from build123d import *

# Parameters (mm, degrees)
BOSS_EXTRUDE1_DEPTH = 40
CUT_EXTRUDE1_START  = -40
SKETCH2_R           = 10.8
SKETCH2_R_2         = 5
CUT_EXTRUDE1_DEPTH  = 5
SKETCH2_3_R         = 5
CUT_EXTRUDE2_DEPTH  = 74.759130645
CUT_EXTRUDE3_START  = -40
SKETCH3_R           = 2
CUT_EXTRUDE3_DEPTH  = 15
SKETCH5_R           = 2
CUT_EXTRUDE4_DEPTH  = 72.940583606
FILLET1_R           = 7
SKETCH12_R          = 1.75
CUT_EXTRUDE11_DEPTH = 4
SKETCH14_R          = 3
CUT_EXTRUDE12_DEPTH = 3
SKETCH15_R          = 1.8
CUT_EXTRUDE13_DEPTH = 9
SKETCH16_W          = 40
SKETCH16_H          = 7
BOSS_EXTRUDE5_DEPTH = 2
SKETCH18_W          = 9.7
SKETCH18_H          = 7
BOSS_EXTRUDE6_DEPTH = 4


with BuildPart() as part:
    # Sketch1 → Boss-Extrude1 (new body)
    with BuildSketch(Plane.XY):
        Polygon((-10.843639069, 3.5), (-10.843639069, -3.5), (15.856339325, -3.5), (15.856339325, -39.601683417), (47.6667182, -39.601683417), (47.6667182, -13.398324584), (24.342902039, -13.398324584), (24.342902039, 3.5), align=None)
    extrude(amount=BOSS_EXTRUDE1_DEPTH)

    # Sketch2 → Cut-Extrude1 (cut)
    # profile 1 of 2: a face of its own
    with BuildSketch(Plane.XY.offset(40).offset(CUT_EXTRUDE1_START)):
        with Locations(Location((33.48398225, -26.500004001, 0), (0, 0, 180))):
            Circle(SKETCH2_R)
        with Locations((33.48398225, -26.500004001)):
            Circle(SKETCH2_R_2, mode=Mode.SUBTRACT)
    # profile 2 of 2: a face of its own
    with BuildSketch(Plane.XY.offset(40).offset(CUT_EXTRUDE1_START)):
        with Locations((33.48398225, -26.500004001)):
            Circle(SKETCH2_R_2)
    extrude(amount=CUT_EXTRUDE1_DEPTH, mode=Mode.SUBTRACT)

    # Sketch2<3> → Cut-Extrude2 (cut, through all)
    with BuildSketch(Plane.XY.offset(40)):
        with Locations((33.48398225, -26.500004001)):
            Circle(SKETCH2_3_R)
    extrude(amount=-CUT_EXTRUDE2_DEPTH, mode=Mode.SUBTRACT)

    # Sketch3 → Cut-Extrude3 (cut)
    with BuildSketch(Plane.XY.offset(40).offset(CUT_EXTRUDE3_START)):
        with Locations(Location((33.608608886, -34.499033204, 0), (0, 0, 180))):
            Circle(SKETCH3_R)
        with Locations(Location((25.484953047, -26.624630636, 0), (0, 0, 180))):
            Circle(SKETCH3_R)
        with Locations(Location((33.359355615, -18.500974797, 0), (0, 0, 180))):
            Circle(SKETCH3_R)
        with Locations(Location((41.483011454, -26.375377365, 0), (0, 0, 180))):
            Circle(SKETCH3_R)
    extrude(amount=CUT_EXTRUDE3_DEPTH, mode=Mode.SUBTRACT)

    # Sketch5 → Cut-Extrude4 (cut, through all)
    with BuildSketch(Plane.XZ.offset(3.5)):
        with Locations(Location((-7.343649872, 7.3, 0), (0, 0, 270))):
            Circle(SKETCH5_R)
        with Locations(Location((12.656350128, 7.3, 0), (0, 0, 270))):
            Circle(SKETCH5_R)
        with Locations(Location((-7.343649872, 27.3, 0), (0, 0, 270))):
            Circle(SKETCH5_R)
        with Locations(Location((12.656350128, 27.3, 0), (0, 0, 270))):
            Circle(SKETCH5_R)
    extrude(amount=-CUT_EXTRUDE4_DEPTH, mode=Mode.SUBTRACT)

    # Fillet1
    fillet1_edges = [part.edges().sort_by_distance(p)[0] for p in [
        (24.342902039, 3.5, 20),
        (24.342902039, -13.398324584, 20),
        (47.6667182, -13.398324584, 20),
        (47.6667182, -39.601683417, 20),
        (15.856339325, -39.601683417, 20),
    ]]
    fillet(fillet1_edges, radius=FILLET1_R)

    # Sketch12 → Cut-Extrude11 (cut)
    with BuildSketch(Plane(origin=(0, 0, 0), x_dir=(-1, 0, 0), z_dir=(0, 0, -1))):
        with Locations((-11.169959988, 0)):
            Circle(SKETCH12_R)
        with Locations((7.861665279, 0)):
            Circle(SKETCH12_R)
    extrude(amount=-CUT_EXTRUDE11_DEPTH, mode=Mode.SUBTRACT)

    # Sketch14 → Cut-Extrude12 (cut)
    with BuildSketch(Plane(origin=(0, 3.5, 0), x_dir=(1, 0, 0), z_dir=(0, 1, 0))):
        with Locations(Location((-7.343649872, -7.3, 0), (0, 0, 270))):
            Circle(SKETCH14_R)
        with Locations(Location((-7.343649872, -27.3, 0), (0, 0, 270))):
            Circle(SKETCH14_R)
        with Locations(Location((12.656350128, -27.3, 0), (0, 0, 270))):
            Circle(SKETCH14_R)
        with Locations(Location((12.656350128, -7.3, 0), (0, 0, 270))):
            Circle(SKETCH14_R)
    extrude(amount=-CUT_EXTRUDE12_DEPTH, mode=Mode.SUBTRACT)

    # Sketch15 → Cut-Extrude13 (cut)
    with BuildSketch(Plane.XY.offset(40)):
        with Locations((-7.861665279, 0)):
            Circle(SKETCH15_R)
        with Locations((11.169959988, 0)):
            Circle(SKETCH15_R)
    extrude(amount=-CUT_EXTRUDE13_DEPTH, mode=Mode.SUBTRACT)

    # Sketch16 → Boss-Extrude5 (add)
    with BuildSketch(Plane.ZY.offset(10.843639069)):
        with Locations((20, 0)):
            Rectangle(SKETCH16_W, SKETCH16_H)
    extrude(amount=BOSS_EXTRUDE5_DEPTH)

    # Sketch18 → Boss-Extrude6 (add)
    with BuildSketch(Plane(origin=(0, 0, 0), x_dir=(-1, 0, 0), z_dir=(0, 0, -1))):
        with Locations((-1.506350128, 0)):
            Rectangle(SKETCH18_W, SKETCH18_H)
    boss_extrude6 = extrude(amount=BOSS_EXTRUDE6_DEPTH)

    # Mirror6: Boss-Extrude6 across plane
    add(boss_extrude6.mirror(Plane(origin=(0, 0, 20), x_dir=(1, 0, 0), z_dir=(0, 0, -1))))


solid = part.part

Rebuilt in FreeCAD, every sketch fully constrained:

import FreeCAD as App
import Part
import Sketcher
from FreeCAD import Vector


def edges_at(feature, points):
    """Names of the edges that pass closest to the given points."""
    edges = feature.Shape.Edges
    near = lambda p: min(range(len(edges)), key=lambda i: edges[i].distToShape(Part.Vertex(*p))[0])
    return sorted({f"Edge{near(p) + 1}" for p in points})

doc = App.newDocument("Part")
body = doc.addObject("PartDesign::Body", "Body")

# Sketch on XY plane
sketch1 = body.newObject("Sketcher::SketchObject", "Sketch")
sketch1.AttachmentSupport = (doc.getObject("XY_Plane"), [""])
sketch1.MapMode = "FlatFace"
sketch1.addGeometry([
    Part.LineSegment(Vector(-11, 4, 0), Vector(-11, -4, 0)),  # 0
    Part.LineSegment(Vector(-11, -4, 0), Vector(16, -4, 0)),  # 1
    Part.LineSegment(Vector(16, -4, 0), Vector(16, -40, 0)),  # 2
    Part.LineSegment(Vector(16, -40, 0), Vector(48, -40, 0)),  # 3
    Part.LineSegment(Vector(48, -40, 0), Vector(48, -13, 0)),  # 4
    Part.LineSegment(Vector(48, -13, 0), Vector(24, -13, 0)),  # 5
    Part.LineSegment(Vector(24, -13, 0), Vector(24, 4, 0)),  # 6
    Part.LineSegment(Vector(24, 4, 0), Vector(-11, 4, 0)),  # 7
], False)
sketch1.addConstraint([
    Sketcher.Constraint("Coincident", 0, 2, 1, 1),
    Sketcher.Constraint("Coincident", 1, 2, 2, 1),
    Sketcher.Constraint("Coincident", 2, 2, 3, 1),
    Sketcher.Constraint("Coincident", 3, 2, 4, 1),
    Sketcher.Constraint("Coincident", 4, 2, 5, 1),
    Sketcher.Constraint("Coincident", 5, 2, 6, 1),
    Sketcher.Constraint("Coincident", 6, 2, 7, 1),
    Sketcher.Constraint("Coincident", 7, 2, 0, 1),
    Sketcher.Constraint("Vertical", 0),
    Sketcher.Constraint("Horizontal", 1),
    Sketcher.Constraint("Vertical", 2),
    Sketcher.Constraint("Horizontal", 3),
    Sketcher.Constraint("Vertical", 4),
    Sketcher.Constraint("Horizontal", 5),
    Sketcher.Constraint("Vertical", 6),
    Sketcher.Constraint("Horizontal", 7),
    Sketcher.Constraint("DistanceY", 0, 2, 0, 1, 7.0),
    Sketcher.Constraint("DistanceY", 0, 2, -1, 1, 3.5),
    Sketcher.Constraint("DistanceX", 1, 1, 1, 2, 26.699978),
    Sketcher.Constraint("DistanceX", 3, 1, 3, 2, 31.810379),
    Sketcher.Constraint("DistanceX", 7, 2, 7, 1, 35.186541),
    Sketcher.Constraint("DistanceY", 4, 1, 4, 2, 26.203359),
    Sketcher.Constraint("DistanceY", 2, 2, 2, 1, 36.101683),
    Sketcher.Constraint("DistanceX", 0, 2, -1, 1, 10.843639),
])
pad1 = body.newObject("PartDesign::Pad", "Pad")
pad1.Profile = sketch1
pad1.Length = 40

# Sketch on XY plane
sketch2 = body.newObject("Sketcher::SketchObject", "Sketch001")
sketch2.AttachmentSupport = (doc.getObject("XY_Plane"), [""])
sketch2.MapMode = "FlatFace"
sketch2.addGeometry(Part.Circle(Vector(33, -27, 0), Vector(0, 0, 1), 11), False)
sketch2.addConstraint([
    Sketcher.Constraint("Diameter", 0, 21.6),
    Sketcher.Constraint("DistanceX", -1, 1, 0, 3, 33.483982),
    Sketcher.Constraint("DistanceY", 0, 3, -1, 1, 26.500004),
])
pocket1 = body.newObject("PartDesign::Pocket", "Pocket")
pocket1.Profile = sketch2
pocket1.Length = 5
pocket1.Reversed = True

# Sketch on XY plane
sketch3 = body.newObject("Sketcher::SketchObject", "Sketch002")
sketch3.AttachmentSupport = (doc.getObject("XY_Plane"), [""])
sketch3.MapMode = "FlatFace"
sketch3.AttachmentOffset = App.Placement(Vector(0, 0, 40), App.Rotation())
sketch3.addGeometry(Part.Circle(Vector(33, -27, 0), Vector(0, 0, 1), 5), False)
sketch3.addConstraint([
    Sketcher.Constraint("Diameter", 0, 10.0),
    Sketcher.Constraint("DistanceX", -1, 1, 0, 3, 33.483982),
    Sketcher.Constraint("DistanceY", 0, 3, -1, 1, 26.500004),
])
pocket2 = body.newObject("PartDesign::Pocket", "Pocket001")
pocket2.Profile = sketch3
pocket2.Type = "ThroughAll"

# Sketch on XY plane
sketch4 = body.newObject("Sketcher::SketchObject", "Sketch003")
sketch4.AttachmentSupport = (doc.getObject("XY_Plane"), [""])
sketch4.MapMode = "FlatFace"
sketch4.addGeometry([
    Part.Circle(Vector(33.6, -34.5, 0), Vector(0, 0, 1), 2),
    Part.Circle(Vector(25.5, -26.6, 0), Vector(0, 0, 1), 2),
    Part.Circle(Vector(33.4, -18.5, 0), Vector(0, 0, 1), 2),
    Part.Circle(Vector(41.5, -26.4, 0), Vector(0, 0, 1), 2),
], False)
sketch4.addConstraint([
    Sketcher.Constraint("Equal", 0, 1),
    Sketcher.Constraint("Equal", 1, 2),
    Sketcher.Constraint("Equal", 2, 3),
    Sketcher.Constraint("Diameter", 0, 4.0),
    Sketcher.Constraint("DistanceX", -1, 1, 0, 3, 33.608609),
    Sketcher.Constraint("DistanceY", 1, 3, -1, 1, 26.624631),
    Sketcher.Constraint("DistanceX", -1, 1, 3, 3, 41.483011),
    Sketcher.Constraint("DistanceY", 0, 3, 2, 3, 15.998058),
    Sketcher.Constraint("DistanceX", 1, 3, 3, 3, 15.998058),
    Sketcher.Constraint("DistanceY", 0, 3, -1, 1, 34.499033),
    Sketcher.Constraint("DistanceX", -1, 1, 2, 3, 33.359356),
    Sketcher.Constraint("DistanceY", 3, 3, -1, 1, 26.375377),
])
pocket3 = body.newObject("PartDesign::Pocket", "Pocket002")
pocket3.Profile = sketch4
pocket3.Length = 15
pocket3.Reversed = True

# Sketch on XZ plane
sketch5 = body.newObject("Sketcher::SketchObject", "Sketch004")
sketch5.AttachmentSupport = (doc.getObject("XZ_Plane"), [""])
sketch5.MapMode = "FlatFace"
sketch5.AttachmentOffset = App.Placement(Vector(0, 0, 3.5), App.Rotation())
sketch5.addGeometry([
    Part.Circle(Vector(-7.3, 7.3, 0), Vector(0, 0, 1), 2),
    Part.Circle(Vector(12.7, 7.3, 0), Vector(0, 0, 1), 2),
    Part.Circle(Vector(-7.3, 27.3, 0), Vector(0, 0, 1), 2),
    Part.Circle(Vector(12.7, 27.3, 0), Vector(0, 0, 1), 2),
], False)
sketch5.addConstraint([
    Sketcher.Constraint("Equal", 0, 1),
    Sketcher.Constraint("Equal", 1, 2),
    Sketcher.Constraint("Equal", 2, 3),
    Sketcher.Constraint("Horizontal", 0, 3, 1, 3),
    Sketcher.Constraint("Horizontal", 2, 3, 3, 3),
    Sketcher.Constraint("Vertical", 0, 3, 2, 3),
    Sketcher.Constraint("Vertical", 1, 3, 3, 3),
    Sketcher.Constraint("Diameter", 0, 4.0),
    Sketcher.Constraint("DistanceX", 0, 3, 1, 3, 20.0),
    Sketcher.Constraint("DistanceY", 0, 3, 2, 3, 20.0),
    Sketcher.Constraint("DistanceY", -1, 1, 0, 3, 7.3),
    Sketcher.Constraint("DistanceX", 0, 3, -1, 1, 7.34365),
])
pocket4 = body.newObject("PartDesign::Pocket", "Pocket003")
pocket4.Profile = sketch5
pocket4.Type = "ThroughAll"
doc.recompute()

fillet = body.newObject("PartDesign::Fillet", "Fillet")
fillet.Base = (pocket4, edges_at(pocket4, [
    (24.343, 3.5, 20),
    (24.343, -13.398, 20),
    (47.667, -13.398, 20),
    (47.667, -39.602, 20),
    (15.856, -39.602, 20),
]))
fillet.Radius = 7

# Sketch on XY plane
sketch6 = body.newObject("Sketcher::SketchObject", "Sketch005")
sketch6.AttachmentSupport = (doc.getObject("XY_Plane"), [""])
sketch6.MapMode = "FlatFace"
sketch6.addGeometry([
    Part.Circle(Vector(11.2, 0, 0), Vector(0, 0, 1), 1.8),
    Part.Circle(Vector(-7.9, 0, 0), Vector(0, 0, 1), 1.8),
], False)
sketch6.addConstraint([
    Sketcher.Constraint("Equal", 0, 1),
    Sketcher.Constraint("PointOnObject", 0, 3, -1),
    Sketcher.Constraint("PointOnObject", 1, 3, -1),
    Sketcher.Constraint("Diameter", 0, 3.5),
    Sketcher.Constraint("DistanceX", -1, 1, 0, 3, 11.16996),
    Sketcher.Constraint("DistanceX", 1, 3, -1, 1, 7.861665),
])
pocket5 = body.newObject("PartDesign::Pocket", "Pocket004")
pocket5.Profile = sketch6
pocket5.Length = 4
pocket5.Reversed = True

# Sketch on XZ plane
sketch7 = body.newObject("Sketcher::SketchObject", "Sketch006")
sketch7.AttachmentSupport = (doc.getObject("XZ_Plane"), [""])
sketch7.MapMode = "FlatFace"
sketch7.AttachmentOffset = App.Placement(Vector(0, 0, -3.5), App.Rotation())
sketch7.addGeometry([
    Part.Circle(Vector(-7.3, 7.3, 0), Vector(0, 0, 1), 3),
    Part.Circle(Vector(-7.3, 27.3, 0), Vector(0, 0, 1), 3),
    Part.Circle(Vector(12.7, 27.3, 0), Vector(0, 0, 1), 3),
    Part.Circle(Vector(12.7, 7.3, 0), Vector(0, 0, 1), 3),
], False)
sketch7.addConstraint([
    Sketcher.Constraint("Equal", 0, 1),
    Sketcher.Constraint("Equal", 1, 2),
    Sketcher.Constraint("Equal", 2, 3),
    Sketcher.Constraint("Horizontal", 1, 3, 2, 3),
    Sketcher.Constraint("Horizontal", 0, 3, 3, 3),
    Sketcher.Constraint("Vertical", 0, 3, 1, 3),
    Sketcher.Constraint("Vertical", 2, 3, 3, 3),
    Sketcher.Constraint("Diameter", 0, 6.0),
    Sketcher.Constraint("DistanceY", 0, 3, 1, 3, 20.0),
    Sketcher.Constraint("DistanceX", 1, 3, 2, 3, 20.0),
    Sketcher.Constraint("DistanceY", -1, 1, 0, 3, 7.3),
    Sketcher.Constraint("DistanceX", 0, 3, -1, 1, 7.34365),
])
pocket6 = body.newObject("PartDesign::Pocket", "Pocket005")
pocket6.Profile = sketch7
pocket6.Length = 3
pocket6.Reversed = True

# Sketch on XY plane
sketch8 = body.newObject("Sketcher::SketchObject", "Sketch007")
sketch8.AttachmentSupport = (doc.getObject("XY_Plane"), [""])
sketch8.MapMode = "FlatFace"
sketch8.AttachmentOffset = App.Placement(Vector(0, 0, 40), App.Rotation())
sketch8.addGeometry([
    Part.Circle(Vector(-7.9, 0, 0), Vector(0, 0, 1), 1.8),
    Part.Circle(Vector(11.2, 0, 0), Vector(0, 0, 1), 1.8),
], False)
sketch8.addConstraint([
    Sketcher.Constraint("Equal", 0, 1),
    Sketcher.Constraint("PointOnObject", 0, 3, -1),
    Sketcher.Constraint("PointOnObject", 1, 3, -1),
    Sketcher.Constraint("Diameter", 0, 3.6),
    Sketcher.Constraint("DistanceX", -1, 1, 1, 3, 11.16996),
    Sketcher.Constraint("DistanceX", 0, 3, -1, 1, 7.861665),
])
pocket7 = body.newObject("PartDesign::Pocket", "Pocket006")
pocket7.Profile = sketch8
pocket7.Length = 9

# Sketch on YZ plane
sketch9 = body.newObject("Sketcher::SketchObject", "Sketch008")
sketch9.AttachmentSupport = (doc.getObject("YZ_Plane"), [""])
sketch9.MapMode = "FlatFace"
sketch9.AttachmentOffset = App.Placement(Vector(0, 0, -10.843639), App.Rotation())
sketch9.addGeometry([
    Part.LineSegment(Vector(4, 0, 0), Vector(-4, 0, 0)),
    Part.LineSegment(Vector(-4, 0, 0), Vector(-4, 40, 0)),
    Part.LineSegment(Vector(-4, 40, 0), Vector(4, 40, 0)),
    Part.LineSegment(Vector(4, 40, 0), Vector(4, 0, 0)),
], False)
sketch9.addConstraint([
    Sketcher.Constraint("Coincident", 0, 2, 1, 1),
    Sketcher.Constraint("Coincident", 1, 2, 2, 1),
    Sketcher.Constraint("Coincident", 2, 2, 3, 1),
    Sketcher.Constraint("Coincident", 3, 2, 0, 1),
    Sketcher.Constraint("Horizontal", 0),
    Sketcher.Constraint("Vertical", 1),
    Sketcher.Constraint("Horizontal", 2),
    Sketcher.Constraint("Vertical", 3),
    Sketcher.Constraint("Symmetric", 0, 2, 3, 2, -1, 1),
    Sketcher.Constraint("DistanceX", 0, 2, 0, 1, 7.0),
    Sketcher.Constraint("DistanceY", 1, 1, 1, 2, 40.0),
])
pad2 = body.newObject("PartDesign::Pad", "Pad001")
pad2.Profile = sketch9
pad2.Length = 2
pad2.Reversed = True

# Sketch on XY plane
sketch10 = body.newObject("Sketcher::SketchObject", "Sketch009")
sketch10.AttachmentSupport = (doc.getObject("XY_Plane"), [""])
sketch10.MapMode = "FlatFace"
sketch10.addGeometry([
    Part.LineSegment(Vector(6, 4, 0), Vector(6, -4, 0)),
    Part.LineSegment(Vector(6, -4, 0), Vector(-3, -4, 0)),
    Part.LineSegment(Vector(-3, -4, 0), Vector(-3, 4, 0)),
    Part.LineSegment(Vector(-3, 4, 0), Vector(6, 4, 0)),
], False)
sketch10.addConstraint([
    Sketcher.Constraint("Coincident", 0, 2, 1, 1),
    Sketcher.Constraint("Coincident", 1, 2, 2, 1),
    Sketcher.Constraint("Coincident", 2, 2, 3, 1),
    Sketcher.Constraint("Coincident", 3, 2, 0, 1),
    Sketcher.Constraint("Vertical", 0),
    Sketcher.Constraint("Horizontal", 1),
    Sketcher.Constraint("Vertical", 2),
    Sketcher.Constraint("Horizontal", 3),
    Sketcher.Constraint("DistanceY", 0, 2, 0, 1, 7.0),
    Sketcher.Constraint("DistanceX", 1, 2, 1, 1, 9.7),
    Sketcher.Constraint("DistanceY", 0, 2, -1, 1, 3.5),
    Sketcher.Constraint("DistanceX", -1, 1, 0, 2, 6.35635),
])
pad3 = body.newObject("PartDesign::Pad", "Pad002")
pad3.Profile = sketch10
pad3.Length = 4
pad3.Reversed = True
doc.recompute()

datumplane = body.newObject("PartDesign::Plane", "DatumPlane")
datumplane.AttachmentSupport = (doc.getObject("XY_Plane"), [""])
datumplane.MapMode = "FlatFace"
datumplane.AttachmentOffset = App.Placement(Vector(0, 0, 20), App.Rotation())
mirrored = body.newObject("PartDesign::Mirrored", "Mirrored")
mirrored.Originals = [pad3]
mirrored.MirrorPlane = (datumplane, [""])
body.Tip = mirrored

doc.recompute()
